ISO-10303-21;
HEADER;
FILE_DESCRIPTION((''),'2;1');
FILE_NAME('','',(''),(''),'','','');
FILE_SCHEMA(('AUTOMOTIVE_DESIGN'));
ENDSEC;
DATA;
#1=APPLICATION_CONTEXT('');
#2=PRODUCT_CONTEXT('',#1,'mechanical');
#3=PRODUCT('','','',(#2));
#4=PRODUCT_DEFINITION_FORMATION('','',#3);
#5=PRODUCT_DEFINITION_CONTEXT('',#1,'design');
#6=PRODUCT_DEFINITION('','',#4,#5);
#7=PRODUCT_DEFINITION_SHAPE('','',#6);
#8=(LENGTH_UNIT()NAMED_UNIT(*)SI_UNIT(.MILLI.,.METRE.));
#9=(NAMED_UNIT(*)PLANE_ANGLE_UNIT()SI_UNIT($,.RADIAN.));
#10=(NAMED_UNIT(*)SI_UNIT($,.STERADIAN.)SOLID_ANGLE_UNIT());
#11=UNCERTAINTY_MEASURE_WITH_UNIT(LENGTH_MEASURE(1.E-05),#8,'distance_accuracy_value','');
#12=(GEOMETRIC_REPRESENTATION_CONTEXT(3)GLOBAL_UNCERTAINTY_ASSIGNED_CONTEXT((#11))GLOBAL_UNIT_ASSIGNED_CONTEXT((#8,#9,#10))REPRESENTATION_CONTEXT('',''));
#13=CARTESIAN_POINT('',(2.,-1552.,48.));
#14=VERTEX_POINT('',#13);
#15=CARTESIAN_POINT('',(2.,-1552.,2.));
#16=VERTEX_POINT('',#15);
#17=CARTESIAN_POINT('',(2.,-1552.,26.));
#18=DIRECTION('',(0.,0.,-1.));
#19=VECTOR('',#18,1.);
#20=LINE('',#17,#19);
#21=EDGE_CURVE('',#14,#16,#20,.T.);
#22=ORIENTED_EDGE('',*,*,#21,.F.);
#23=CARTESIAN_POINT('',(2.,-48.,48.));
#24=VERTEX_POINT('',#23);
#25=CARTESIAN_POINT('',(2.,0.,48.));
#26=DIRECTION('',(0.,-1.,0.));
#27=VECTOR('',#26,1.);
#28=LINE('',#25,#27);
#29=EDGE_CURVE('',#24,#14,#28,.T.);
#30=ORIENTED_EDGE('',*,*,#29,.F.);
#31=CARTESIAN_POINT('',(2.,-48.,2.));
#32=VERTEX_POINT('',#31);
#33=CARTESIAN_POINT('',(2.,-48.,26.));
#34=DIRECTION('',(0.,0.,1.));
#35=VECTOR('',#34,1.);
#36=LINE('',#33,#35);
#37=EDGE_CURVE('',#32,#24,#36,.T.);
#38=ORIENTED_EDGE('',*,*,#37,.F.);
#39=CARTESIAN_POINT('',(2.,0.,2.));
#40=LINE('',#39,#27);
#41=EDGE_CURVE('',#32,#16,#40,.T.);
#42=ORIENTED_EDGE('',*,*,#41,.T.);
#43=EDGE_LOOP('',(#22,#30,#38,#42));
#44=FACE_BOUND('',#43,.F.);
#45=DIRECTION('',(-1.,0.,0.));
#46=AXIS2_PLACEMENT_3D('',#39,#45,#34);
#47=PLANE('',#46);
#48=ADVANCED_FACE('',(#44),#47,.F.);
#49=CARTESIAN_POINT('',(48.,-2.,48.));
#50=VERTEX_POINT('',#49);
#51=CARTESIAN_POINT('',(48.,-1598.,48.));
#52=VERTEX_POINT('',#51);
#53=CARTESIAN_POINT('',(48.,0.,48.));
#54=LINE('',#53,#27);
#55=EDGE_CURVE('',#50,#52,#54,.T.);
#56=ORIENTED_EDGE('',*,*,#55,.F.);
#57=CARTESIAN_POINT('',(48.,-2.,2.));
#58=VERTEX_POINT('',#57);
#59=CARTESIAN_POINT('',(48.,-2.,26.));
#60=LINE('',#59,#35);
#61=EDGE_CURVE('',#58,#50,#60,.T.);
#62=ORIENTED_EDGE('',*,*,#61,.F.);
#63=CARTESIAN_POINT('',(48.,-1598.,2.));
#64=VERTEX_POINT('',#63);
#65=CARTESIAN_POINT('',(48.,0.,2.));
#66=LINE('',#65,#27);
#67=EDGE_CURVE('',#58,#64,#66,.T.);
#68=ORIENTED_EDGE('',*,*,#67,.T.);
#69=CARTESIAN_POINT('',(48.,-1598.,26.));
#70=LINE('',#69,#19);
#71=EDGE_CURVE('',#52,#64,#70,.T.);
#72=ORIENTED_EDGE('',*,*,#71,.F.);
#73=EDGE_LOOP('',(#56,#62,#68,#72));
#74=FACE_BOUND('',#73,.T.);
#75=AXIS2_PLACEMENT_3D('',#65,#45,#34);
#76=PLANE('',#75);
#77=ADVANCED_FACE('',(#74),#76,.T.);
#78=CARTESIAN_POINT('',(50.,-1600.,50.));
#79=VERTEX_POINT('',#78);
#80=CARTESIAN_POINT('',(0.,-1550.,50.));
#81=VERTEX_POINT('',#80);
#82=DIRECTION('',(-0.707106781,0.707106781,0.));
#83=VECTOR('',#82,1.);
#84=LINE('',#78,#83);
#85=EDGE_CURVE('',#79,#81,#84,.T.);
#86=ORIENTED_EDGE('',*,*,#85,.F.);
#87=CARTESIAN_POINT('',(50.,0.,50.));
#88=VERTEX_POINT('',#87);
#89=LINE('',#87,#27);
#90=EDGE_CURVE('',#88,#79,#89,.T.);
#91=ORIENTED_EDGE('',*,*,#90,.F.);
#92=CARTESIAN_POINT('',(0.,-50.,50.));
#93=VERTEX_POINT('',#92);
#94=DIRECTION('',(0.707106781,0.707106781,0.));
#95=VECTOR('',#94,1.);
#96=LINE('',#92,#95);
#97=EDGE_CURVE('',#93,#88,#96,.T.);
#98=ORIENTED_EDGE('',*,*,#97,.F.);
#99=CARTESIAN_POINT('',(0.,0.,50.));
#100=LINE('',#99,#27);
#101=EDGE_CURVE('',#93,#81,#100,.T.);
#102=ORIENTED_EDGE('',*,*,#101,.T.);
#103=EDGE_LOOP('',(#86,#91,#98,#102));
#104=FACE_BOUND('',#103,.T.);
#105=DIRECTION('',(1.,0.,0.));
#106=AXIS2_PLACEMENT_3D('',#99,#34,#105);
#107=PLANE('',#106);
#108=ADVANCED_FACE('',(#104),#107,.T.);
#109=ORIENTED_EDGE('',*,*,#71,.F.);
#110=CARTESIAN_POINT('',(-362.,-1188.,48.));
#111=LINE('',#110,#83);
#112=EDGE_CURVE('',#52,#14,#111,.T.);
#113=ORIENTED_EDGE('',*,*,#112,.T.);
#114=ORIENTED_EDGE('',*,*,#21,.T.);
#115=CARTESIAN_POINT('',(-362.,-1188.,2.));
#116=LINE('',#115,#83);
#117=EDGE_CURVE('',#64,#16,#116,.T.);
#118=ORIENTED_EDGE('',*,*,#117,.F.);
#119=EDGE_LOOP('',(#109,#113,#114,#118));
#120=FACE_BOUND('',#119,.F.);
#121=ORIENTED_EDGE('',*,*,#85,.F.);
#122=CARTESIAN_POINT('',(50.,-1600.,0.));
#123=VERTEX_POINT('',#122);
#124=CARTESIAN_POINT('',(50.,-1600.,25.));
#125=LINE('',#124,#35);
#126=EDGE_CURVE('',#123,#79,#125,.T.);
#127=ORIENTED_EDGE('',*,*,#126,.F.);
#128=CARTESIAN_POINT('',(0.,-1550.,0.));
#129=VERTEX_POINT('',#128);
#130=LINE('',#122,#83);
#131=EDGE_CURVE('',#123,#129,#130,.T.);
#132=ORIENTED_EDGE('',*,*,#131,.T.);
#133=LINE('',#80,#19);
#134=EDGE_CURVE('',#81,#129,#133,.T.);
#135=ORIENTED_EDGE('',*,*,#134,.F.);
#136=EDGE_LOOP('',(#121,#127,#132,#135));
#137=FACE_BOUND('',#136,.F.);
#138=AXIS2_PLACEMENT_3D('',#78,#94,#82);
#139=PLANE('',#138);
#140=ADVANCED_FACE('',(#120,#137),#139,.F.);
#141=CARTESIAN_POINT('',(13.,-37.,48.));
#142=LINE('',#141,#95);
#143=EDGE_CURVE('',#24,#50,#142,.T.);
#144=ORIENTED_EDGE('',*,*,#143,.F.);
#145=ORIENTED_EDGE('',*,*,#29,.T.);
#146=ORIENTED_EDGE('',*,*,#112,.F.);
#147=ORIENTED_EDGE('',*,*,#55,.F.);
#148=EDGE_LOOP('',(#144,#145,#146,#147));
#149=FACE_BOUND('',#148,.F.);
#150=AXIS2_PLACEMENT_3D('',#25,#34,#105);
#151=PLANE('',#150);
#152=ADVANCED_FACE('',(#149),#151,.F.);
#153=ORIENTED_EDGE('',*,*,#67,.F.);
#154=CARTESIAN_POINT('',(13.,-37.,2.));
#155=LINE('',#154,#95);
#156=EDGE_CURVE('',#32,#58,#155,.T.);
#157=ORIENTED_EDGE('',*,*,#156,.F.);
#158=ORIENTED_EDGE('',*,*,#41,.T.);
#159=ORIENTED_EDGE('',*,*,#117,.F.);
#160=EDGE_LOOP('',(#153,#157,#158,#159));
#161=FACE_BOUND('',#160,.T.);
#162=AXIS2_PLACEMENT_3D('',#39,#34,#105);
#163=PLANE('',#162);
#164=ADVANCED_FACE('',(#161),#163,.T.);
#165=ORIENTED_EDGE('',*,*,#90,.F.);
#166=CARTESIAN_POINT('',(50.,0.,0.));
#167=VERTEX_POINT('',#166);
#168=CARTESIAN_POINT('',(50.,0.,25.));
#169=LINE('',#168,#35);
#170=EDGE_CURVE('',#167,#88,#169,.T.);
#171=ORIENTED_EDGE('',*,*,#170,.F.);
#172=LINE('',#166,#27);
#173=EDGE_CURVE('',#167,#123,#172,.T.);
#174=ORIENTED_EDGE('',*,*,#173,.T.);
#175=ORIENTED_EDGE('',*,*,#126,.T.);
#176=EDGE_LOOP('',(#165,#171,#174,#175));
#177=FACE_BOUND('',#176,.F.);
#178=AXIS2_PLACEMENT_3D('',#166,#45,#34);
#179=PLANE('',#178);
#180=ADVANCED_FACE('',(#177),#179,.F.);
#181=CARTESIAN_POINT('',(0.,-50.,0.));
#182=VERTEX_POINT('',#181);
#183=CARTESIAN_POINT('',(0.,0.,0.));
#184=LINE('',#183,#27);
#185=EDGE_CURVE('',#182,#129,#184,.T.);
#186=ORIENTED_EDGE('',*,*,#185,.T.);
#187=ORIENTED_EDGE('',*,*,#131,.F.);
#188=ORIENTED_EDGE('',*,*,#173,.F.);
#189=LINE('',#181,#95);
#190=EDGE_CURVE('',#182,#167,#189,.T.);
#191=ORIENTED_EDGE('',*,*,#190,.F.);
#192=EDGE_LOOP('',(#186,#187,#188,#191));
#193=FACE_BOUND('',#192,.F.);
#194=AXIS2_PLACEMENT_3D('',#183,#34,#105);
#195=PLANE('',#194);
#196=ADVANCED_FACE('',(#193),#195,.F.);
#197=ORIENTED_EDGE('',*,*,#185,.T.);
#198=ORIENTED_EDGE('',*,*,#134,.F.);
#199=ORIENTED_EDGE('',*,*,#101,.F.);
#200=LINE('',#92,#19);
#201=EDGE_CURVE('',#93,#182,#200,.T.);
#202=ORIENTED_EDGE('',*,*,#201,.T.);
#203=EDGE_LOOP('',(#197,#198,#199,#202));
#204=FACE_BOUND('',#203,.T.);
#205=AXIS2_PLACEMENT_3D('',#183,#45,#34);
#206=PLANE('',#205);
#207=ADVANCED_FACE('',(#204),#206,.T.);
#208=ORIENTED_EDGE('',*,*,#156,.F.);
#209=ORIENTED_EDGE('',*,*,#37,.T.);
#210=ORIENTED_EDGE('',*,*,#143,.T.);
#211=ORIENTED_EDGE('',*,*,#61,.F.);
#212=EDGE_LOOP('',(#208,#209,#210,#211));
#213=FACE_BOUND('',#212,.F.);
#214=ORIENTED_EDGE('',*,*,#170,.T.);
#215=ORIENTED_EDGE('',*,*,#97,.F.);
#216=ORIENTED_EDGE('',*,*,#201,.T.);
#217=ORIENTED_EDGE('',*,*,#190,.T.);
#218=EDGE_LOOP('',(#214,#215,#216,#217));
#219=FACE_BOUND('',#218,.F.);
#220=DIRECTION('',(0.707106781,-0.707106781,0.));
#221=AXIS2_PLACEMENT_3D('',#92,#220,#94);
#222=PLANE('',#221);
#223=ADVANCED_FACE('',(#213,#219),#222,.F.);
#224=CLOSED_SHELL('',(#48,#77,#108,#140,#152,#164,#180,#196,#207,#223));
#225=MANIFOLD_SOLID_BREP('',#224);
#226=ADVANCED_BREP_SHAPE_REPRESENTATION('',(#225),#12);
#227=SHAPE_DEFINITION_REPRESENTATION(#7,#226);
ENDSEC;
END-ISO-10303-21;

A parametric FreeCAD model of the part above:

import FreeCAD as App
import Part
import Sketcher

V = App.Vector

doc = App.newDocument("Part")
params = doc.addObject("Spreadsheet::Sheet", "Params")
for row, (alias, value) in enumerate([
    ("sketch1_width", "50 mm"),
    ("sketch1_width2", "46 mm"),
    ("pad1_length", "1600 mm"),
    ("sketch2_width", "50 mm"),
    ("pocket1_length", "50 mm"),
    ("sketch3_width", "50 mm"),
    ("pocket2_length", "50 mm"),
], start=1):
    params.set(f"A{row}", alias)
    params.set(f"B{row}", "=" + value)
    params.setAlias(f"B{row}", alias)

body = doc.addObject("PartDesign::Body", "Body")

# Sketch on XZ plane
sketch1 = doc.addObject("Sketcher::SketchObject", "Sketch")
body.addObject(sketch1)
sketch1.AttachmentSupport = (doc.XZ_Plane, [""])
sketch1.MapMode = "FlatFace"
sketch1.addGeometry([
    Part.LineSegment(V(0, 50, 0), V(0, 0, 0)),  # 0
    Part.LineSegment(V(0, 0, 0), V(50, 0, 0)),  # 1
    Part.LineSegment(V(50, 0, 0), V(50, 50, 0)),  # 2
    Part.LineSegment(V(50, 50, 0), V(0, 50, 0)),  # 3
    Part.LineSegment(V(48, 2, 0), V(2, 2, 0)),  # 4
    Part.LineSegment(V(2, 2, 0), V(2, 48, 0)),  # 5
    Part.LineSegment(V(2, 48, 0), V(48, 48, 0)),  # 6
    Part.LineSegment(V(48, 48, 0), V(48, 2, 0)),  # 7
], False)
sketch1.addConstraint([
    Sketcher.Constraint("Coincident", 0, 2, 1, 1),
    Sketcher.Constraint("Coincident", 1, 2, 2, 1),
    Sketcher.Constraint("Coincident", 2, 2, 3, 1),
    Sketcher.Constraint("Coincident", 3, 2, 0, 1),
    Sketcher.Constraint("Coincident", 4, 2, 5, 1),
    Sketcher.Constraint("Coincident", 5, 2, 6, 1),
    Sketcher.Constraint("Coincident", 6, 2, 7, 1),
    Sketcher.Constraint("Coincident", 7, 2, 4, 1),
    Sketcher.Constraint("Vertical", 0),
    Sketcher.Constraint("Horizontal", 1),
    Sketcher.Constraint("Vertical", 2),
    Sketcher.Constraint("Horizontal", 3),
    Sketcher.Constraint("Horizontal", 4),
    Sketcher.Constraint("Vertical", 5),
    Sketcher.Constraint("Horizontal", 6),
    Sketcher.Constraint("Vertical", 7),
    Sketcher.Constraint("Coincident", 0, 2, -1, 1),
    Sketcher.Constraint("Equal", 3, 0),
    Sketcher.Constraint("Equal", 6, 5),
    Sketcher.Constraint("DistanceX", 1, 1, 1, 2, 50.0),
    Sketcher.Constraint("DistanceX", 4, 2, 4, 1, 46.0),
    Sketcher.Constraint("DistanceX", -1, 1, 4, 2, 2.0),
    Sketcher.Constraint("DistanceY", -1, 1, 4, 2, 2.0),
])
sketch1.setExpression("Constraints[19]", "Params.sketch1_width")
sketch1.setExpression("Constraints[20]", "Params.sketch1_width2")
pad1 = doc.addObject("PartDesign::Pad", "Pad")
body.addObject(pad1)
pad1.Profile = sketch1
pad1.setExpression("Length", "Params.pad1_length")

# Sketch on XY plane
sketch2 = doc.addObject("Sketcher::SketchObject", "Sketch001")
body.addObject(sketch2)
sketch2.AttachmentSupport = (doc.XY_Plane, [""])
sketch2.MapMode = "FlatFace"
sketch2.AttachmentOffset = App.Placement(V(0, 0, 50), App.Rotation())
sketch2.addGeometry([
    Part.LineSegment(V(50, 0, 0), V(0, 0, 0)),
    Part.LineSegment(V(0, 0, 0), V(0, -50, 0)),
    Part.LineSegment(V(0, -50, 0), V(50, 0, 0)),
], False)
sketch2.addConstraint([
    Sketcher.Constraint("Coincident", 0, 2, 1, 1),
    Sketcher.Constraint("Coincident", 1, 2, 2, 1),
    Sketcher.Constraint("Coincident", 2, 2, 0, 1),
    Sketcher.Constraint("Horizontal", 0),
    Sketcher.Constraint("Vertical", 1),
    Sketcher.Constraint("Coincident", 0, 2, -1, 1),
    Sketcher.Constraint("Equal", 0, 1),
    Sketcher.Constraint("DistanceX", 0, 2, 0, 1, 50.0),
])
sketch2.setExpression("Constraints[7]", "Params.sketch2_width")
pocket1 = doc.addObject("PartDesign::Pocket", "Pocket")
body.addObject(pocket1)
pocket1.Profile = sketch2
pocket1.setExpression("Length", "Params.pocket1_length")

# Sketch on XY plane
sketch3 = doc.addObject("Sketcher::SketchObject", "Sketch002")
body.addObject(sketch3)
sketch3.AttachmentSupport = (doc.XY_Plane, [""])
sketch3.MapMode = "FlatFace"
sketch3.AttachmentOffset = App.Placement(V(0, 0, 50), App.Rotation())
sketch3.addGeometry([
    Part.LineSegment(V(50, 0, 0), V(0, 0, 0)),  # 0
    Part.LineSegment(V(0, 0, 0), V(0, -50, 0)),  # 1
    Part.LineSegment(V(0, -50, 0), V(50, 0, 0)),  # 2
    Part.LineSegment(V(0, -1550, 0), V(0, -1600, 0)),  # 3
    Part.LineSegment(V(0, -1600, 0), V(50, -1600, 0)),  # 4
    Part.LineSegment(V(50, -1600, 0), V(0, -1550, 0)),  # 5
], False)
sketch3.addConstraint([
    Sketcher.Constraint("Coincident", 0, 2, 1, 1),
    Sketcher.Constraint("Coincident", 1, 2, 2, 1),
    Sketcher.Constraint("Coincident", 2, 2, 0, 1),
    Sketcher.Constraint("Coincident", 3, 2, 4, 1),
    Sketcher.Constraint("Coincident", 4, 2, 5, 1),
    Sketcher.Constraint("Coincident", 5, 2, 3, 1),
    Sketcher.Constraint("Horizontal", 0),
    Sketcher.Constraint("Vertical", 1),
    Sketcher.Constraint("Vertical", 3),
    Sketcher.Constraint("Horizontal", 4),
    Sketcher.Constraint("Coincident", 0, 2, -1, 1),
    Sketcher.Constraint("PointOnObject", 3, 2, -2),
    Sketcher.Constraint("Perpendicular", 2, 5),
    Sketcher.Constraint("Vertical", 2, 2, 4, 2),
    Sketcher.Constraint("Equal", 4, 1),
    Sketcher.Constraint("DistanceX", 0, 2, 0, 1, 50.0),
    Sketcher.Constraint("DistanceY", 3, 2, -1, 1, 1600.0),
])
sketch3.setExpression("Constraints[15]", "Params.sketch3_width")
pocket2 = doc.addObject("PartDesign::Pocket", "Pocket001")
body.addObject(pocket2)
pocket2.Profile = sketch3
pocket2.setExpression("Length", "Params.pocket2_length")

doc.recompute()
